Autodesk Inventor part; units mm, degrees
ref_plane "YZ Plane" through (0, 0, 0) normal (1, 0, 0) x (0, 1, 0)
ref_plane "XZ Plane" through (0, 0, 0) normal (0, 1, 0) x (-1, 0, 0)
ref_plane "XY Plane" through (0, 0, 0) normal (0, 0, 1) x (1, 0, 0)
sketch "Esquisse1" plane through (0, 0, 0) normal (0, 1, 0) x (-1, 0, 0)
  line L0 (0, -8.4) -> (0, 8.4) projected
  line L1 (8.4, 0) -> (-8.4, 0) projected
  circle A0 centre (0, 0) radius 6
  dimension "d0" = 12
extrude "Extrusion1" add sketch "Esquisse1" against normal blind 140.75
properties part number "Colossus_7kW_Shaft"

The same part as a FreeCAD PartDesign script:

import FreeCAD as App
import Part
import Sketcher
from FreeCAD import Vector
Q = App.Units.Quantity

doc = App.newDocument("Part")
params = doc.addObject("Spreadsheet::Sheet", "Params")
for row, (alias, value) in enumerate([
    ("sketch1_diameter", "12 mm"),
    ("pad1_length", "140.75 mm"),
], start=1):
    params.set(f"A{row}", alias)
    params.set(f"B{row}", "=" + value)
    params.setAlias(f"B{row}", alias)

body = doc.addObject("PartDesign::Body", "Body")

# Sketch on XZ plane
sketch1 = body.newObject("Sketcher::SketchObject", "Sketch")
sketch1.AttachmentSupport = (doc.getObject("XZ_Plane"), [""])
sketch1.MapMode = "FlatFace"
sketch1.addGeometry(Part.Circle(Vector(0, 0, 0), Vector(0, 0, 1), 6), False)
sketch1.addConstraint([
    Sketcher.Constraint("Coincident", 0, 3, -1, 1),
    Sketcher.Constraint("Diameter", 0, Q("12 mm")),
])
sketch1.setExpression("Constraints[1]", "Params.sketch1_diameter")
pad1 = body.newObject("PartDesign::Pad", "Pad")
pad1.Profile = sketch1
pad1.setExpression("Length", "Params.pad1_length")

doc.recompute()
